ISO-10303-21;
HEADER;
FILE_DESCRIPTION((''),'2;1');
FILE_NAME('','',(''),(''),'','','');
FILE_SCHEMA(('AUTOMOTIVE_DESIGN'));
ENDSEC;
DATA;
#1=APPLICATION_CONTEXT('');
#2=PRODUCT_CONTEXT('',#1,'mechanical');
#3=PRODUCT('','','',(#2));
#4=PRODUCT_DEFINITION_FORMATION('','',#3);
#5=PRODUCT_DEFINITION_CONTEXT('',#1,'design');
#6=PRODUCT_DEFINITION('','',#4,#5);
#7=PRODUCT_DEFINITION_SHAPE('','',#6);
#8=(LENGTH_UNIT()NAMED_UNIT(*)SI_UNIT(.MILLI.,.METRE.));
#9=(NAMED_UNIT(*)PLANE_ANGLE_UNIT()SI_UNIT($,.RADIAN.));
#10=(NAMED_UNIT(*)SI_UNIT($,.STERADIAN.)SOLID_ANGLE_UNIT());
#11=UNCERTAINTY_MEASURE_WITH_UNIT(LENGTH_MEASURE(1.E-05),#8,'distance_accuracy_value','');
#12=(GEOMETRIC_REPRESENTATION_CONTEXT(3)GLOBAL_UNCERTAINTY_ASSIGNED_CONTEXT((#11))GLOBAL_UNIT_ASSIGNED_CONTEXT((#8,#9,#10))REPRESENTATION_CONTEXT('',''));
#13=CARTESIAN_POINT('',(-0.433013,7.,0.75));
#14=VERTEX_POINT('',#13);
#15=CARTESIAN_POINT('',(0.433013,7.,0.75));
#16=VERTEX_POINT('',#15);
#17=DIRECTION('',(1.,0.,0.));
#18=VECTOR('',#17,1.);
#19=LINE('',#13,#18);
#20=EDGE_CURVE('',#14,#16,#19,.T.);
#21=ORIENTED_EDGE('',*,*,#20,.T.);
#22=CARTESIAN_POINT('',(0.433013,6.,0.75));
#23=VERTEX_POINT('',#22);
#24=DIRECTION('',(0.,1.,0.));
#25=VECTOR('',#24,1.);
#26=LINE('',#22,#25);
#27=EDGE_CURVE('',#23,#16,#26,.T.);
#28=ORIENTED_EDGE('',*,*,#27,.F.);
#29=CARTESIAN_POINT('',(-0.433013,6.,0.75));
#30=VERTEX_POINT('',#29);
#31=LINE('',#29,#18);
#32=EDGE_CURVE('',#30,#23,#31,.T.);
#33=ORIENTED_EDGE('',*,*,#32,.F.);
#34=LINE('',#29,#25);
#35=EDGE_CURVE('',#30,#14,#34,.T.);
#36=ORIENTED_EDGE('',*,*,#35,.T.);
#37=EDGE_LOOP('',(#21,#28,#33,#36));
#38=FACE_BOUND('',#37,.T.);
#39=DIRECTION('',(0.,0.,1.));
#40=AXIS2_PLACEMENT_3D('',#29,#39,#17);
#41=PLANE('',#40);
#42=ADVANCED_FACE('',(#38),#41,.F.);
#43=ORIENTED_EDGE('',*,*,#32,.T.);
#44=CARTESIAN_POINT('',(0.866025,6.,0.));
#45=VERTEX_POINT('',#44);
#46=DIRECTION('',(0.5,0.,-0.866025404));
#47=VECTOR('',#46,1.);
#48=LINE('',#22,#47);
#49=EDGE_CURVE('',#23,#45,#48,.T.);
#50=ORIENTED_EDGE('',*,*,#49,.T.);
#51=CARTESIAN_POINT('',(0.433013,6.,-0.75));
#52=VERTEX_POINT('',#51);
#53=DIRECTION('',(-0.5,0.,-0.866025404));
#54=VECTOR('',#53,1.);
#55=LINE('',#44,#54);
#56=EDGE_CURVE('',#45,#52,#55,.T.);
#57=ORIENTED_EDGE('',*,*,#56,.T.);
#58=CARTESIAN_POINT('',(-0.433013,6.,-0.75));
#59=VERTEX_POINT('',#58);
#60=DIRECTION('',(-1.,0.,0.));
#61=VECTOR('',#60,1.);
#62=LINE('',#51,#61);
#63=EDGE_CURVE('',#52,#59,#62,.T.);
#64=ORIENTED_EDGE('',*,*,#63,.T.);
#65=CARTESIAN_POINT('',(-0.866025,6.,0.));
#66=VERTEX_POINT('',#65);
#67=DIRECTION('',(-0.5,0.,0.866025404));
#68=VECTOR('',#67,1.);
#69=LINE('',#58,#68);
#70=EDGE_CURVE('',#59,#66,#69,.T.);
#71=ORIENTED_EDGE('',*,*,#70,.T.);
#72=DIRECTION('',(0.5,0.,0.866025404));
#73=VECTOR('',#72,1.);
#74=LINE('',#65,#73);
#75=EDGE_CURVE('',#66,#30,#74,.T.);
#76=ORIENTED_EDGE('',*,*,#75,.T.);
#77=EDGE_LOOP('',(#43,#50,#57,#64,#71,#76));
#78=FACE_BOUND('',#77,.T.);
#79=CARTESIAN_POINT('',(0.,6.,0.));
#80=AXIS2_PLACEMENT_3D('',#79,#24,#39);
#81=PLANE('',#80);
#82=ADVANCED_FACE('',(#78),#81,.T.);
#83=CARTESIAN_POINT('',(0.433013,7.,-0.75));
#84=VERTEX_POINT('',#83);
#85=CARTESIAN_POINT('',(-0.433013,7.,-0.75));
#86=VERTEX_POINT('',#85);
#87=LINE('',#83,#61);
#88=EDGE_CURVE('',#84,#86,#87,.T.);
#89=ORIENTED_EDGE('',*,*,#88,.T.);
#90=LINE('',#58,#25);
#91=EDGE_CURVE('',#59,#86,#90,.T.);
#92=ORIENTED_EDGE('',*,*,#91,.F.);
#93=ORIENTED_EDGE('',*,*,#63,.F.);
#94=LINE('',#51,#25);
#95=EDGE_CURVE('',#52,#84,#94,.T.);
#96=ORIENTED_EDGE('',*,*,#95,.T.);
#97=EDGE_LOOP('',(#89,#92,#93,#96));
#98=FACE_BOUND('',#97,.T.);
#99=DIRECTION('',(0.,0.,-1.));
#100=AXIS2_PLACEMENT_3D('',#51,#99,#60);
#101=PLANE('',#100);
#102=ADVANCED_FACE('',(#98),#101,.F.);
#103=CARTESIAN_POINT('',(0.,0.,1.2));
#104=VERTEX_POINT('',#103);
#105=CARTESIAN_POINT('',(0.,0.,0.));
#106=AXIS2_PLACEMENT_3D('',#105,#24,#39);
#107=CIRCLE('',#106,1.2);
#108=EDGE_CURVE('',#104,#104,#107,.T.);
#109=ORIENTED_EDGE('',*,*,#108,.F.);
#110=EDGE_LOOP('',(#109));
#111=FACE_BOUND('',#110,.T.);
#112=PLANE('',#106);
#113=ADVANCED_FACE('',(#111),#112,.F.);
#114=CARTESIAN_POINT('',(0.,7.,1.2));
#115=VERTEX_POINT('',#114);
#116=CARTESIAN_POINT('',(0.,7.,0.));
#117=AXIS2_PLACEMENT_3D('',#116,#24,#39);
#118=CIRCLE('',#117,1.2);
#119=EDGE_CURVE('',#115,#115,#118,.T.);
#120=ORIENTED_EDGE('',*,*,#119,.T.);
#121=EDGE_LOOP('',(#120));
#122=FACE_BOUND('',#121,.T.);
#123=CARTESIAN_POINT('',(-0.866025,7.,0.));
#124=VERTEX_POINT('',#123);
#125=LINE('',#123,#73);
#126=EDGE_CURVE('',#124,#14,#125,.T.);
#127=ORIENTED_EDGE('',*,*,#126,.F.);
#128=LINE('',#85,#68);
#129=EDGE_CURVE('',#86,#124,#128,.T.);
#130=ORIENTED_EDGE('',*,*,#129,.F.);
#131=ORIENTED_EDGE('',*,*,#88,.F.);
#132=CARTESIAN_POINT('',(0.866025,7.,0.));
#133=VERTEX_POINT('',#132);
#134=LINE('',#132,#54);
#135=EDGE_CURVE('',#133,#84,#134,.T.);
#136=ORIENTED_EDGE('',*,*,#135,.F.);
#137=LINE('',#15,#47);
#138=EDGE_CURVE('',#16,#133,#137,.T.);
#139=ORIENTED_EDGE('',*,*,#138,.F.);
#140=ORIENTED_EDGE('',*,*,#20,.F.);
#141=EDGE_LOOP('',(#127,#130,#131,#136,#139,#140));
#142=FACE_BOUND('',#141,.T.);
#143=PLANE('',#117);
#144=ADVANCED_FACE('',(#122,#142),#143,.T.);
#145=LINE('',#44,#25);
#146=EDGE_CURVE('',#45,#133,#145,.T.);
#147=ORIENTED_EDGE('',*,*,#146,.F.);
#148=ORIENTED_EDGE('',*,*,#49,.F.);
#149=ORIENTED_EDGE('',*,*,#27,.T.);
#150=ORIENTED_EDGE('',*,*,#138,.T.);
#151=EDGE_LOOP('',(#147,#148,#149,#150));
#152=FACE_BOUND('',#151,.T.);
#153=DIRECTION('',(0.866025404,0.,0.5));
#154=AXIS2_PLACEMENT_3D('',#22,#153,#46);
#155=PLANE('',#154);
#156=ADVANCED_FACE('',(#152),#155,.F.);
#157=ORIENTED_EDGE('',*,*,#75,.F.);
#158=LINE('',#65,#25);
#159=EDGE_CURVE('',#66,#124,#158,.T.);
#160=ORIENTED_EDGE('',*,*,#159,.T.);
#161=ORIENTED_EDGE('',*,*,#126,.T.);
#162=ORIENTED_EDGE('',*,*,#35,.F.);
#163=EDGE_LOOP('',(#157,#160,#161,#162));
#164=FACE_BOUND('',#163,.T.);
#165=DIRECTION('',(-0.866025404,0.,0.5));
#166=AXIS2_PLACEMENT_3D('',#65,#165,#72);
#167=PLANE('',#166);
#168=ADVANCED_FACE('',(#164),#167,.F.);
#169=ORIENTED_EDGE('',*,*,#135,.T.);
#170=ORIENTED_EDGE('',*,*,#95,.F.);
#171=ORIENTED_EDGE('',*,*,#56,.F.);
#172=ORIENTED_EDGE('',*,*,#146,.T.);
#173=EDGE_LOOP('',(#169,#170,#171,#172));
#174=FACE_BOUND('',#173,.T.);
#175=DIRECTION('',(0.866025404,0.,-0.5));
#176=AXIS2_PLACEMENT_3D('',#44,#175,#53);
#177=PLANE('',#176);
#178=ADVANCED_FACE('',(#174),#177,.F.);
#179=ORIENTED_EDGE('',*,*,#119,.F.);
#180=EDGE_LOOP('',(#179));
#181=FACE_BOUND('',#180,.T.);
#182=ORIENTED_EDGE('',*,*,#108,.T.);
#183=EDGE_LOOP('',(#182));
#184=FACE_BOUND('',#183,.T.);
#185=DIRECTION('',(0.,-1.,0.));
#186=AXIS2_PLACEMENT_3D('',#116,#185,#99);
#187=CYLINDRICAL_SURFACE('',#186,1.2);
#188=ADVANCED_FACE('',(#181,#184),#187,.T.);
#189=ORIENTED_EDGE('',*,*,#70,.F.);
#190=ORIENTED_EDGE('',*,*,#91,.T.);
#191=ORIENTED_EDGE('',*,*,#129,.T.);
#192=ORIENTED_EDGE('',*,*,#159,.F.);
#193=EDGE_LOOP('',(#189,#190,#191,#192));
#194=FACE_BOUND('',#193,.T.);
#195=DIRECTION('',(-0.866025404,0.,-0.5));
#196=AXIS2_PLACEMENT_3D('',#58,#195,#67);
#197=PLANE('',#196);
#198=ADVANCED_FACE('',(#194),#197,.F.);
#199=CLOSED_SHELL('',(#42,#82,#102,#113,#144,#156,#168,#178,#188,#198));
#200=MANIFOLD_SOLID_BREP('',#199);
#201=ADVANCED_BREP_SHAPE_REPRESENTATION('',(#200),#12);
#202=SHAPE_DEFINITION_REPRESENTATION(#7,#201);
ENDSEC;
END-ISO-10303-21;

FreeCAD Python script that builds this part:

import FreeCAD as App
import Part
import Sketcher
Q = App.Units.Quantity

doc = App.newDocument("Part")
body = doc.addObject("PartDesign::Body", "Body")

sketch1 = body.newObject("Sketcher::SketchObject", "Sketch")
sketch1.AttachmentSupport = (doc.getObject("XZ_Plane"), [""])
sketch1.MapMode = "FlatFace"
sketch1.addGeometry(Part.Circle(App.Vector(0, 0, 0), App.Vector(0, 0, 1), 1.2), False)
sketch1.addConstraint(Sketcher.Constraint("Coincident", 0, 3, -1, 1))
sketch1.addConstraint(Sketcher.Constraint("Diameter", 0, 2.4))
pad1 = body.newObject("PartDesign::Pad", "Pad")
pad1.Profile = sketch1
pad1.Length = 7
pad1.Reversed = True

sketch2 = body.newObject("Sketcher::SketchObject", "Sketch001")
sketch2.AttachmentSupport = (doc.getObject("XZ_Plane"), [""])
sketch2.MapMode = "FlatFace"
sketch2.AttachmentOffset = App.Placement(App.Vector(0, 0, -7), App.Rotation())
sketch2.addGeometry(Part.LineSegment(App.Vector(0.866025, 0, 0), App.Vector(0.433013, -0.75, 0)), False)
sketch2.addGeometry(Part.LineSegment(App.Vector(0.433013, -0.75, 0), App.Vector(-0.433013, -0.75, 0)), False)
sketch2.addGeometry(Part.LineSegment(App.Vector(-0.433013, -0.75, 0), App.Vector(-0.866025, 0, 0)), False)
sketch2.addGeometry(Part.LineSegment(App.Vector(-0.866025, 0, 0), App.Vector(-0.433013, 0.75, 0)), False)
sketch2.addGeometry(Part.LineSegment(App.Vector(-0.433013, 0.75, 0), App.Vector(0.433013, 0.75, 0)), False)
sketch2.addGeometry(Part.LineSegment(App.Vector(0.433013, 0.75, 0), App.Vector(0.866025, 0, 0)), False)
sketch2.addConstraint(Sketcher.Constraint("Coincident", 0, 2, 1, 1))
sketch2.addConstraint(Sketcher.Constraint("Coincident", 1, 2, 2, 1))
sketch2.addConstraint(Sketcher.Constraint("Coincident", 2, 2, 3, 1))
sketch2.addConstraint(Sketcher.Constraint("Coincident", 3, 2, 4, 1))
sketch2.addConstraint(Sketcher.Constraint("Coincident", 4, 2, 5, 1))
sketch2.addConstraint(Sketcher.Constraint("Coincident", 5, 2, 0, 1))
sketch2.addConstraint(Sketcher.Constraint("Horizontal", 1))
sketch2.addConstraint(Sketcher.Constraint("Horizontal", 4))
sketch2.addConstraint(Sketcher.Constraint("Symmetric", 0, 2, 3, 2, -1, 1))
sketch2.addConstraint(Sketcher.Constraint("Symmetric", 2, 2, 5, 2, -1, 1))
sketch2.addConstraint(Sketcher.Constraint("PointOnObject", 2, 2, -1))
sketch2.addConstraint(Sketcher.Constraint("Parallel", 2, 5))
sketch2.addConstraint(Sketcher.Constraint("Vertical", 1, 2, 3, 2))
sketch2.addConstraint(Sketcher.Constraint("Angle", 0, Q("-120 deg")))
sketch2.addConstraint(Sketcher.Constraint("DistanceY", 1, 2, 3, 2, 1.5))
sketch2.addConstraint(Sketcher.Constraint("DistanceX", 1, 2, 1, 1, 0.866025))
pocket1 = body.newObject("PartDesign::Pocket", "Pocket")
pocket1.Profile = sketch2
pocket1.Length = 1
pocket1.Reversed = True

doc.recompute()
